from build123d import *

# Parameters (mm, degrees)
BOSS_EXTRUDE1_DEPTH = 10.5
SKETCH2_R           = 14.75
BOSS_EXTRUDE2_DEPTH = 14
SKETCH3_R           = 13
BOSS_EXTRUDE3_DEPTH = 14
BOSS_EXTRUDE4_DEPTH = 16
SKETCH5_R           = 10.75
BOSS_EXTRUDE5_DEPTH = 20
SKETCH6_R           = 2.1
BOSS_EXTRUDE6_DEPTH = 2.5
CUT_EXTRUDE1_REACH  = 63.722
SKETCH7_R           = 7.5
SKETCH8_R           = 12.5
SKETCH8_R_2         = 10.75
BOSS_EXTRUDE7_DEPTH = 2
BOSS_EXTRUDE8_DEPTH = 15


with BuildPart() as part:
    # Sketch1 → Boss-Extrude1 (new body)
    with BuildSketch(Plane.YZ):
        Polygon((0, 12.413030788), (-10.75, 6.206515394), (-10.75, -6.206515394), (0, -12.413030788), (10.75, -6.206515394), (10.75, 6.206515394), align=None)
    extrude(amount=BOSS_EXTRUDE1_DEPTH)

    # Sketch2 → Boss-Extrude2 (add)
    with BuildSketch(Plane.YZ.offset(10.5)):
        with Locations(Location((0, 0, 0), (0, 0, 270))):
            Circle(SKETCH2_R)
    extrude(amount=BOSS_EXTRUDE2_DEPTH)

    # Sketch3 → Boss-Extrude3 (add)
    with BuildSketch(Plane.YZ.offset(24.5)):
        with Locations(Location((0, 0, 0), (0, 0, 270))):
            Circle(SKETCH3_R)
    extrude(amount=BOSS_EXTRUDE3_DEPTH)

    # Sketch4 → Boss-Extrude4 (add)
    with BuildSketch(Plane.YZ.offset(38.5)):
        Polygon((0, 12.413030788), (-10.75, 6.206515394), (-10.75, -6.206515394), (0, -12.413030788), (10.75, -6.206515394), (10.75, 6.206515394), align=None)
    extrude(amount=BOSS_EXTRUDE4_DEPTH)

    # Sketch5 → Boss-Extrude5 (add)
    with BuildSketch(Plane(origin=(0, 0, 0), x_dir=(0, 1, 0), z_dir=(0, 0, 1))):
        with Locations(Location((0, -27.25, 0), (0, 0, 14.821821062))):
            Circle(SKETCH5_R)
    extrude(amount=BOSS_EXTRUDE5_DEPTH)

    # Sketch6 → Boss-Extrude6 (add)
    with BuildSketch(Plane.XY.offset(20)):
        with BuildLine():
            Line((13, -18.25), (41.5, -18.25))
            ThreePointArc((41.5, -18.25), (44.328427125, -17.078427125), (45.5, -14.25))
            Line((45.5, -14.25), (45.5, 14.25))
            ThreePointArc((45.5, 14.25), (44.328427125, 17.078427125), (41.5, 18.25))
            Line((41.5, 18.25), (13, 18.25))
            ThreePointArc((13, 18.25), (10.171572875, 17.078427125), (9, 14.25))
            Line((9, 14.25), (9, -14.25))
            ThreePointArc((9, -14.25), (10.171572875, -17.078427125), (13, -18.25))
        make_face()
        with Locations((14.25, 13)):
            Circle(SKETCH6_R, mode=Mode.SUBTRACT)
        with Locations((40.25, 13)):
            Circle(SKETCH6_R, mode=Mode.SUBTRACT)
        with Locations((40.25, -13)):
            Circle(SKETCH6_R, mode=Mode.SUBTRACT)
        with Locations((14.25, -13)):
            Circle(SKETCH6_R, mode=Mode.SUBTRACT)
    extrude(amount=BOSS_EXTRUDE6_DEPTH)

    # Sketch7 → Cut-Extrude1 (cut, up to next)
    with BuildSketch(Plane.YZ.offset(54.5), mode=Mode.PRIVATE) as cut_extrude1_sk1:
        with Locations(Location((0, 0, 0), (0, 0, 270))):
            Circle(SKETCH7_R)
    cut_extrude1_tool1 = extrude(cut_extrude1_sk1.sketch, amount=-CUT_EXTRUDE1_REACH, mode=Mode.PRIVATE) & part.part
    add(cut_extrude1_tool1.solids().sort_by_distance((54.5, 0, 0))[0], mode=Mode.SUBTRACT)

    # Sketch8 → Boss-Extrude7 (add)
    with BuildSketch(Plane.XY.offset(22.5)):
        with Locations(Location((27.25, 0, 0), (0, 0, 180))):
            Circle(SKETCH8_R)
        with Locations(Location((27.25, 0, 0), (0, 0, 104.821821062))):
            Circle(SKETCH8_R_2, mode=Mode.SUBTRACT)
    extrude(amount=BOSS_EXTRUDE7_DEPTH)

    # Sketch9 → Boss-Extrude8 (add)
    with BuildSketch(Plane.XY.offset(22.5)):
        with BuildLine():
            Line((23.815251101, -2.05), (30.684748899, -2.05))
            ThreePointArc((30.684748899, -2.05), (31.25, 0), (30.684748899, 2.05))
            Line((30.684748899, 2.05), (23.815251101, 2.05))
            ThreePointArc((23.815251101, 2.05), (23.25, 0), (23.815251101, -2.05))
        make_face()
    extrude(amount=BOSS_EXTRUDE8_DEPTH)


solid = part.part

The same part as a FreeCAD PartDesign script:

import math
import FreeCAD as App
import Part
import Sketcher

V = App.Vector
Q = App.Units.Quantity


def add_polygon(sketch, points):
    """Adds a closed chain of lines whose ends are joined by coincident constraints."""
    first, n = sketch.GeometryCount, len(points)
    for a, b in zip(points, points[1:] + points[:1]):
        sketch.addGeometry(Part.LineSegment(App.Vector(*a, 0), App.Vector(*b, 0)), False)
    for i in range(n):
        sketch.addConstraint(Sketcher.Constraint("Coincident", first + i, 2, first + (i + 1) % n, 1))

doc = App.newDocument("Part")
body = doc.addObject("PartDesign::Body", "Body")

sketch1 = body.newObject("Sketcher::SketchObject", "Sketch")
sketch1.AttachmentSupport = (doc.getObject("YZ_Plane"), [""])
sketch1.MapMode = "FlatFace"
add_polygon(sketch1, [(0, 12), (-11, 6), (-11, -6), (0, -12), (11, -6), (11, 6)])
sketch1.addConstraint(Sketcher.Constraint("Vertical", 1))
sketch1.addConstraint(Sketcher.Constraint("Vertical", 4))
sketch1.addConstraint(Sketcher.Constraint("Symmetric", 0, 2, 3, 2, -1, 1))
sketch1.addConstraint(Sketcher.Constraint("Symmetric", 2, 2, 5, 2, -1, 1))
sketch1.addConstraint(Sketcher.Constraint("PointOnObject", 2, 2, -2))
sketch1.addConstraint(Sketcher.Constraint("Parallel", 2, 5))
sketch1.addConstraint(Sketcher.Constraint("Horizontal", 1, 2, 3, 2))
sketch1.addConstraint(Sketcher.Constraint("Angle", 0, Q("-150 deg")))
sketch1.addConstraint(Sketcher.Constraint("DistanceX", 1, 2, 3, 2, 21.5))
sketch1.addConstraint(Sketcher.Constraint("DistanceY", 1, 2, 1, 1, 12.413031))
pad1 = body.newObject("PartDesign::Pad", "Pad")
pad1.Profile = sketch1
pad1.Length = 10.5

sketch2 = body.newObject("Sketcher::SketchObject", "Sketch001")
sketch2.AttachmentSupport = (doc.getObject("YZ_Plane"), [""])
sketch2.MapMode = "FlatFace"
sketch2.AttachmentOffset = App.Placement(V(0, 0, 10.5), App.Rotation())
sketch2.addGeometry(Part.Circle(V(0, 0, 0), V(0, 0, 1), 15), False)
sketch2.addConstraint(Sketcher.Constraint("Coincident", 0, 3, -1, 1))
sketch2.addConstraint(Sketcher.Constraint("Diameter", 0, 29.5))
pad2 = body.newObject("PartDesign::Pad", "Pad001")
pad2.Profile = sketch2
pad2.Length = 14

sketch3 = body.newObject("Sketcher::SketchObject", "Sketch002")
sketch3.AttachmentSupport = (doc.getObject("YZ_Plane"), [""])
sketch3.MapMode = "FlatFace"
sketch3.AttachmentOffset = App.Placement(V(0, 0, 24.5), App.Rotation())
sketch3.addGeometry(Part.Circle(V(0, 0, 0), V(0, 0, 1), 13), False)
sketch3.addConstraint(Sketcher.Constraint("Coincident", 0, 3, -1, 1))
sketch3.addConstraint(Sketcher.Constraint("Diameter", 0, 26.0))
pad3 = body.newObject("PartDesign::Pad", "Pad002")
pad3.Profile = sketch3
pad3.Length = 14

sketch4 = body.newObject("Sketcher::SketchObject", "Sketch003")
sketch4.AttachmentSupport = (doc.getObject("YZ_Plane"), [""])
sketch4.MapMode = "FlatFace"
sketch4.AttachmentOffset = App.Placement(V(0, 0, 38.5), App.Rotation())
add_polygon(sketch4, [(0, 12), (-11, 6), (-11, -6), (0, -12), (11, -6), (11, 6)])
sketch4.addConstraint(Sketcher.Constraint("Vertical", 1))
sketch4.addConstraint(Sketcher.Constraint("Vertical", 4))
sketch4.addConstraint(Sketcher.Constraint("Symmetric", 0, 2, 3, 2, -1, 1))
sketch4.addConstraint(Sketcher.Constraint("Symmetric", 2, 2, 5, 2, -1, 1))
sketch4.addConstraint(Sketcher.Constraint("PointOnObject", 2, 2, -2))
sketch4.addConstraint(Sketcher.Constraint("Parallel", 2, 5))
sketch4.addConstraint(Sketcher.Constraint("Horizontal", 1, 2, 3, 2))
sketch4.addConstraint(Sketcher.Constraint("Angle", 0, Q("-150 deg")))
sketch4.addConstraint(Sketcher.Constraint("DistanceX", 1, 2, 3, 2, 21.5))
sketch4.addConstraint(Sketcher.Constraint("DistanceY", 1, 2, 1, 1, 12.413031))
pad4 = body.newObject("PartDesign::Pad", "Pad003")
pad4.Profile = sketch4
pad4.Length = 16

sketch5 = body.newObject("Sketcher::SketchObject", "Sketch004")
sketch5.AttachmentSupport = (doc.getObject("XY_Plane"), [""])
sketch5.MapMode = "FlatFace"
sketch5.addGeometry(Part.Circle(V(27, 0, 0), V(0, 0, 1), 11), False)
sketch5.addConstraint(Sketcher.Constraint("PointOnObject", 0, 3, -1))
sketch5.addConstraint(Sketcher.Constraint("Diameter", 0, 21.5))
sketch5.addConstraint(Sketcher.Constraint("DistanceX", -1, 1, 0, 3, 27.25))
pad5 = body.newObject("PartDesign::Pad", "Pad004")
pad5.Profile = sketch5
pad5.Length = 20

sketch6 = body.newObject("Sketcher::SketchObject", "Sketch005")
sketch6.AttachmentSupport = (doc.getObject("XY_Plane"), [""])
sketch6.MapMode = "FlatFace"
sketch6.AttachmentOffset = App.Placement(V(0, 0, 20), App.Rotation())
sketch6.addGeometry(Part.LineSegment(V(13, -18.2, 0), V(41.5, -18.2, 0)), False)
sketch6.addGeometry(Part.ArcOfCircle(Part.Circle(V(41.5, -14.3, 0), V(0, 0, 1), 4), math.radians(-90), math.radians(0)), False)
sketch6.addGeometry(Part.LineSegment(V(45.5, -14.2, 0), V(45.5, 14.2, 0)), False)
sketch6.addGeometry(Part.ArcOfCircle(Part.Circle(V(41.5, 14.3, 0), V(0, 0, 1), 4), math.radians(0), math.radians(90)), False)
sketch6.addGeometry(Part.LineSegment(V(41.5, 18.2, 0), V(13, 18.2, 0)), False)
sketch6.addGeometry(Part.ArcOfCircle(Part.Circle(V(13, 14.3, 0), V(0, 0, 1), 4), math.radians(90), math.radians(180)), False)
sketch6.addGeometry(Part.LineSegment(V(9, 14.2, 0), V(9, -14.2, 0)), False)
sketch6.addGeometry(Part.ArcOfCircle(Part.Circle(V(13, -14.3, 0), V(0, 0, 1), 4), math.radians(180), math.radians(270)), False)
sketch6.addGeometry(Part.Circle(V(14.2, -13, 0), V(0, 0, 1), 2.1), False)
sketch6.addGeometry(Part.Circle(V(40.2, -13, 0), V(0, 0, 1), 2.1), False)
sketch6.addGeometry(Part.Circle(V(14.2, 13, 0), V(0, 0, 1), 2.1), False)
sketch6.addGeometry(Part.Circle(V(40.2, 13, 0), V(0, 0, 1), 2.1), False)
sketch6.addConstraint(Sketcher.Constraint("Tangent", 0, 2, 1, 1))
sketch6.addConstraint(Sketcher.Constraint("Tangent", 1, 2, 2, 1))
sketch6.addConstraint(Sketcher.Constraint("Tangent", 2, 2, 3, 1))
sketch6.addConstraint(Sketcher.Constraint("Tangent", 3, 2, 4, 1))
sketch6.addConstraint(Sketcher.Constraint("Tangent", 4, 2, 5, 1))
sketch6.addConstraint(Sketcher.Constraint("Tangent", 5, 2, 6, 1))
sketch6.addConstraint(Sketcher.Constraint("Tangent", 6, 2, 7, 1))
sketch6.addConstraint(Sketcher.Constraint("Tangent", 7, 2, 0, 1))
sketch6.addConstraint(Sketcher.Constraint("Horizontal", 0))
sketch6.addConstraint(Sketcher.Constraint("Vertical", 2))
sketch6.addConstraint(Sketcher.Constraint("Horizontal", 4))
sketch6.addConstraint(Sketcher.Constraint("Vertical", 6))
sketch6.addConstraint(Sketcher.Constraint("Equal", 1, 3))
sketch6.addConstraint(Sketcher.Constraint("Equal", 3, 5))
sketch6.addConstraint(Sketcher.Constraint("Equal", 5, 7))
sketch6.addConstraint(Sketcher.Constraint("Equal", 8, 9))
sketch6.addConstraint(Sketcher.Constraint("Equal", 9, 10))
sketch6.addConstraint(Sketcher.Constraint("Equal", 10, 11))
sketch6.addConstraint(Sketcher.Constraint("Symmetric", 8, 3, 10, 3, -1))
sketch6.addConstraint(Sketcher.Constraint("Symmetric", 9, 3, 11, 3, -1))
sketch6.addConstraint(Sketcher.Constraint("Horizontal", 8, 3, 9, 3))
sketch6.addConstraint(Sketcher.Constraint("Equal", 4, 2))
sketch6.addConstraint(Sketcher.Constraint("Radius", 1, 4.0))
sketch6.addConstraint(Sketcher.Constraint("Diameter", 8, 4.2))
sketch6.addConstraint(Sketcher.Constraint("DistanceX", 0, 1, 0, 2, 28.5))
sketch6.addConstraint(Sketcher.Constraint("DistanceX", -1, 1, 5, 3, 13.0))
sketch6.addConstraint(Sketcher.Constraint("DistanceY", 8, 3, -1, 1, 13.0))
sketch6.addConstraint(Sketcher.Constraint("DistanceX", 8, 3, 9, 3, 26.0))
sketch6.addConstraint(Sketcher.Constraint("DistanceY", 1, 3, -1, 1, 14.25))
sketch6.addConstraint(Sketcher.Constraint("DistanceX", -1, 1, 8, 3, 14.25))
pad6 = body.newObject("PartDesign::Pad", "Pad005")
pad6.Profile = sketch6
pad6.Length = 2.5

sketch7 = body.newObject("Sketcher::SketchObject", "Sketch006")
sketch7.AttachmentSupport = (doc.getObject("YZ_Plane"), [""])
sketch7.MapMode = "FlatFace"
sketch7.AttachmentOffset = App.Placement(V(0, 0, 54.5), App.Rotation())
sketch7.addGeometry(Part.Circle(V(0, 0, 0), V(0, 0, 1), 8), False)
sketch7.addConstraint(Sketcher.Constraint("Coincident", 0, 3, -1, 1))
sketch7.addConstraint(Sketcher.Constraint("Diameter", 0, 15.0))
pocket1 = body.newObject("PartDesign::Pocket", "Pocket")
pocket1.Profile = sketch7
pocket1.Type = "UpToFirst"

sketch8 = body.newObject("Sketcher::SketchObject", "Sketch007")
sketch8.AttachmentSupport = (doc.getObject("XY_Plane"), [""])
sketch8.MapMode = "FlatFace"
sketch8.AttachmentOffset = App.Placement(V(0, 0, 22.5), App.Rotation())
sketch8.addGeometry(Part.Circle(V(27, 0, 0), V(0, 0, 1), 12), False)
sketch8.addGeometry(Part.Circle(V(27, 0, 0), V(0, 0, 1), 11), False)
sketch8.addConstraint(Sketcher.Constraint("Coincident", 1, 3, 0, 3))
sketch8.addConstraint(Sketcher.Constraint("PointOnObject", 0, 3, -1))
sketch8.addConstraint(Sketcher.Constraint("Diameter", 0, 25.0))
sketch8.addConstraint(Sketcher.Constraint("Diameter", 1, 21.5))
sketch8.addConstraint(Sketcher.Constraint("DistanceX", -1, 1, 0, 3, 27.25))
pad7 = body.newObject("PartDesign::Pad", "Pad006")
pad7.Profile = sketch8
pad7.Length = 2

sketch9 = body.newObject("Sketcher::SketchObject", "Sketch008")
sketch9.AttachmentSupport = (doc.getObject("XY_Plane"), [""])
sketch9.MapMode = "FlatFace"
sketch9.AttachmentOffset = App.Placement(V(0, 0, 22.5), App.Rotation())
sketch9.addGeometry(Part.LineSegment(V(23.8, -2, 0), V(30.7, -2, 0)), False)
sketch9.addGeometry(Part.ArcOfCircle(Part.Circle(V(27.3, 0, 0), V(0, 0, 1), 4), math.radians(-31), math.radians(31)), False)
sketch9.addGeometry(Part.LineSegment(V(30.7, 2, 0), V(23.8, 2, 0)), False)
sketch9.addGeometry(Part.ArcOfCircle(Part.Circle(V(27.2, 0, 0), V(0, 0, 1), 4), math.radians(149), math.radians(211)), False)
sketch9.addConstraint(Sketcher.Constraint("Coincident", 0, 2, 1, 1))
sketch9.addConstraint(Sketcher.Constraint("Coincident", 1, 2, 2, 1))
sketch9.addConstraint(Sketcher.Constraint("Coincident", 2, 2, 3, 1))
sketch9.addConstraint(Sketcher.Constraint("Coincident", 3, 2, 0, 1))
sketch9.addConstraint(Sketcher.Constraint("Horizontal", 0))
sketch9.addConstraint(Sketcher.Constraint("Horizontal", 2))
sketch9.addConstraint(Sketcher.Constraint("Coincident", 3, 3, 1, 3))
sketch9.addConstraint(Sketcher.Constraint("Equal", 1, 3))
sketch9.addConstraint(Sketcher.Constraint("Symmetric", 0, 2, 1, 2, -1))
sketch9.addConstraint(Sketcher.Constraint("Radius", 1, 4.0))
sketch9.addConstraint(Sketcher.Constraint("DistanceY", 0, 2, 1, 2, 4.1))
sketch9.addConstraint(Sketcher.Constraint("DistanceX", -1, 1, 1, 3, 27.25))
pad8 = body.newObject("PartDesign::Pad", "Pad007")
pad8.Profile = sketch9
pad8.Length = 15

doc.recompute()
